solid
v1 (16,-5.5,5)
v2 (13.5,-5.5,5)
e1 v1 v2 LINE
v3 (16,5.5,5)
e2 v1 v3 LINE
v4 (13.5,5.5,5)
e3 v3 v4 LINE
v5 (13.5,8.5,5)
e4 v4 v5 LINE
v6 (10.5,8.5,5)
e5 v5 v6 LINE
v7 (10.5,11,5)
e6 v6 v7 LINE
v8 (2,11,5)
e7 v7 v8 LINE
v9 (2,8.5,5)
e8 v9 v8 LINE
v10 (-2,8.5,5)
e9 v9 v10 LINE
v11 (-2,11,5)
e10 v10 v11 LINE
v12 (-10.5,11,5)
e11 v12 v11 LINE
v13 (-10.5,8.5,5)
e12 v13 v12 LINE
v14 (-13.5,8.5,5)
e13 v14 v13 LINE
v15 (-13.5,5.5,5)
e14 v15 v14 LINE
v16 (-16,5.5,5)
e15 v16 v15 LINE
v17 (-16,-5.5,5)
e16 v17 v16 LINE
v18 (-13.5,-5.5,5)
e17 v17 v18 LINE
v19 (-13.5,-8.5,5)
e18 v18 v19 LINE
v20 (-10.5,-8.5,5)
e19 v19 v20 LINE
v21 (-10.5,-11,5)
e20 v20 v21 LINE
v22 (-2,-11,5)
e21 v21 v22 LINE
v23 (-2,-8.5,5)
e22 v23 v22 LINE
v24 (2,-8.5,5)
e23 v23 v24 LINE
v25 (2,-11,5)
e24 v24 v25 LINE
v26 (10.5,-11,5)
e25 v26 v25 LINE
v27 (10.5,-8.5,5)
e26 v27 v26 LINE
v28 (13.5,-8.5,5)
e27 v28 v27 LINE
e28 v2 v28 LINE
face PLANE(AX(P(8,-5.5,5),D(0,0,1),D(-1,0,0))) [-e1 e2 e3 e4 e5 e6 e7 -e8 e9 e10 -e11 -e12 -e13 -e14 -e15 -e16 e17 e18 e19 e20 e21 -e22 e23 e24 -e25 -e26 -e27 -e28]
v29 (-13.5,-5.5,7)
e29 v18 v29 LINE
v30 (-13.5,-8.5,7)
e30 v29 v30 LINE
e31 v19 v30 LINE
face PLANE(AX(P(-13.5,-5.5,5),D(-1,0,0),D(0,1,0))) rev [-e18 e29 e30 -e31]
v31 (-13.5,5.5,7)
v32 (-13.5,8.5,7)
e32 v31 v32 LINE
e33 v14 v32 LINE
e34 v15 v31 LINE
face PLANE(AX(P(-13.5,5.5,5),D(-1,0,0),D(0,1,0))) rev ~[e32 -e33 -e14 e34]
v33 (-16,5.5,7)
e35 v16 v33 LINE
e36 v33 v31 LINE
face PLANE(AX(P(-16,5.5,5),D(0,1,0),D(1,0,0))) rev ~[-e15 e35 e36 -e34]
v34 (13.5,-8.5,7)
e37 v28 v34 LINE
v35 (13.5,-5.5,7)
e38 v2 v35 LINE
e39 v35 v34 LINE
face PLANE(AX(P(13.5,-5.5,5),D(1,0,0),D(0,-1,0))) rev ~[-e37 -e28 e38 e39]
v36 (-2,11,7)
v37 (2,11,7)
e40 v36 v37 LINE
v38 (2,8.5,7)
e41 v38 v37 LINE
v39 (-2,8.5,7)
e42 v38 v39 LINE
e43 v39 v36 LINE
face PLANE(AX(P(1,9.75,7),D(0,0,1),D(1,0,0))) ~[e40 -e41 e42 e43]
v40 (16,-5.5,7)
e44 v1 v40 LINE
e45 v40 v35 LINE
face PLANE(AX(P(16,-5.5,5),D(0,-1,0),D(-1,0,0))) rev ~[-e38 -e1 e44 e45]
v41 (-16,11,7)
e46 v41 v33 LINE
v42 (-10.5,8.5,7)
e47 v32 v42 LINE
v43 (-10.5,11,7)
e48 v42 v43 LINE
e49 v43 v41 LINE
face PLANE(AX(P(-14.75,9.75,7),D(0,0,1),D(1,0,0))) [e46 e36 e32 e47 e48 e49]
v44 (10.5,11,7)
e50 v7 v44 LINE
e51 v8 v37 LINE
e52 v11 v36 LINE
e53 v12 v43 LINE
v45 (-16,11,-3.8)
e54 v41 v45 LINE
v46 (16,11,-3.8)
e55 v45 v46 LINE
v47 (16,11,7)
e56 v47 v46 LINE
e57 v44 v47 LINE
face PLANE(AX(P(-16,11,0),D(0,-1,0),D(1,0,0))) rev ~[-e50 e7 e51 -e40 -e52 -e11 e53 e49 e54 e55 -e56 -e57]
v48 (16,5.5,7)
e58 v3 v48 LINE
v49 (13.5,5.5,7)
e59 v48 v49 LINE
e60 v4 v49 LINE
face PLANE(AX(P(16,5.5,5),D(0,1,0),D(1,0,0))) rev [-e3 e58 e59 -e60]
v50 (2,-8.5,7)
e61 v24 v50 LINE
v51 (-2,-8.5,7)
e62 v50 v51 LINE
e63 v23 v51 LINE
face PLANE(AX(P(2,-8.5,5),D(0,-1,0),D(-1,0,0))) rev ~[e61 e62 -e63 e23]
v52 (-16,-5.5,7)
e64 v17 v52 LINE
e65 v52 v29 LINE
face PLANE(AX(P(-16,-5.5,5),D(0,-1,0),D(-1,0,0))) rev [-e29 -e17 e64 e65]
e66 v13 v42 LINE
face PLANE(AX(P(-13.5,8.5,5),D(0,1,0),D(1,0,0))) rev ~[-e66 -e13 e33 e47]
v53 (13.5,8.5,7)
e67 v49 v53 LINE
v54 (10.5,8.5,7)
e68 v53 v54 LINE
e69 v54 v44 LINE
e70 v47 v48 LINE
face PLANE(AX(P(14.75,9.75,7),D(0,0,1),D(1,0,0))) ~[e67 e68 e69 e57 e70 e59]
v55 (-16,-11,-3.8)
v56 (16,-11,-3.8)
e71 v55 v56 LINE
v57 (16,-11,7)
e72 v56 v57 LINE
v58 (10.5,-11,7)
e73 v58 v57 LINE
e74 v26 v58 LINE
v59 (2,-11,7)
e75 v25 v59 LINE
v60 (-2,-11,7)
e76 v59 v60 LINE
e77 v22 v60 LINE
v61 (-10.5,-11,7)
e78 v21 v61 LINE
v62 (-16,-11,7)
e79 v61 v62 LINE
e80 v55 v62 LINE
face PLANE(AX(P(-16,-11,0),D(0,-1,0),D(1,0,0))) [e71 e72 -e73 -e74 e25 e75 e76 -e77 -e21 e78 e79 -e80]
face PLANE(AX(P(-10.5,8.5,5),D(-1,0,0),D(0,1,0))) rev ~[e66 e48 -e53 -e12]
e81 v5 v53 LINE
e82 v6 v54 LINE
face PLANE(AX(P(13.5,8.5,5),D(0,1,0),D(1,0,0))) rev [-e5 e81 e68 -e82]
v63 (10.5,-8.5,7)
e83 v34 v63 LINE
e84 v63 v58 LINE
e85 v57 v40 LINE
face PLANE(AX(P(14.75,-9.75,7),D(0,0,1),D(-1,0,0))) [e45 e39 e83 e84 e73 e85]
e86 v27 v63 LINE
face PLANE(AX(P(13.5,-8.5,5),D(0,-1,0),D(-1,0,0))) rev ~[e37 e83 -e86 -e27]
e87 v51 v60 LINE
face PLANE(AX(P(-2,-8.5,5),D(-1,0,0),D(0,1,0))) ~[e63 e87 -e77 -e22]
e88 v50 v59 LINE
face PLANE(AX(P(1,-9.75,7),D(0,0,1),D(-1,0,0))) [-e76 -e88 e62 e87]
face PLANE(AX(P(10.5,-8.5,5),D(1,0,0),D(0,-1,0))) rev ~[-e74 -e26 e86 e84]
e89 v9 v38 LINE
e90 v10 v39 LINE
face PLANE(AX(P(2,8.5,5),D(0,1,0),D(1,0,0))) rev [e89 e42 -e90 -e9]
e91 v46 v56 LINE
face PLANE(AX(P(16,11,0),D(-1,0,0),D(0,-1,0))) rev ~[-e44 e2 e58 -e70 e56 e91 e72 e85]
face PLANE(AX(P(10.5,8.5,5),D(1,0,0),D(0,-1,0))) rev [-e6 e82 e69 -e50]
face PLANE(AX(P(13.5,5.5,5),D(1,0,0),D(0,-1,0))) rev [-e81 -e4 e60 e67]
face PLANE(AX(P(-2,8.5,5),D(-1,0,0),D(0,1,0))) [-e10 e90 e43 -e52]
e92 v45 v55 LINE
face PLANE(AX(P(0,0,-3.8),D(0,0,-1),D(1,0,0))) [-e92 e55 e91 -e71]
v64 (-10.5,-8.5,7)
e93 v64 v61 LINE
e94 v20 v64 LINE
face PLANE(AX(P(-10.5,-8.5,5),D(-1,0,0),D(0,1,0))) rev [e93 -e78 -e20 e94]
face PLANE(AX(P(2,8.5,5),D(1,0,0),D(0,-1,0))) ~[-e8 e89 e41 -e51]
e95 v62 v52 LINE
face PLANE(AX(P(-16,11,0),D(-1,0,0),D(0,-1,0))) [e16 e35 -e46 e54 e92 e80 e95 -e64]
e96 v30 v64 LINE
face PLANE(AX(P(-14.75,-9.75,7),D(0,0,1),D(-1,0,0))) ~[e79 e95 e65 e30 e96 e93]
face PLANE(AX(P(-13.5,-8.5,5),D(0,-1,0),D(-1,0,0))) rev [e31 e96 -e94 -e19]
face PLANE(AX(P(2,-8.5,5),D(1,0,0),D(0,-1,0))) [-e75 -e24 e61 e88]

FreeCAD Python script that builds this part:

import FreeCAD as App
import Part
import Sketcher

V = App.Vector
Q = App.Units.Quantity

doc = App.newDocument("Part")
params = doc.addObject("Spreadsheet::Sheet", "Params")
for row, (alias, value) in enumerate([
    ("sketch1_width", "16 mm"),
    ("sketch1_height", "11 mm"),
    ("pad1_length", "5 mm"),
    ("sketch2_width", "3 mm"),
    ("sketch2_width2", "2 mm"),
    ("sketch2_width3", "2.5 mm"),
    ("pad2_length", "2 mm"),
    ("sketch3_width", "32 mm"),
    ("sketch3_height", "22 mm"),
    ("pad3_length", "3.8 mm"),
], start=1):
    params.set(f"A{row}", alias)
    params.set(f"B{row}", "=" + value)
    params.setAlias(f"B{row}", alias)

body = doc.addObject("PartDesign::Body", "Body")

# Sketch on XY plane
sketch1 = body.newObject("Sketcher::SketchObject", "Sketch")
sketch1.AttachmentSupport = (doc.getObject("XY_Plane"), [""])
sketch1.MapMode = "FlatFace"
sketch1.addGeometry(Part.LineSegment(V(-16, 11, 0), V(-16, 0, 0)), False)
sketch1.addGeometry(Part.LineSegment(V(-16, 0, 0), V(0, 0, 0)), False)
sketch1.addGeometry(Part.LineSegment(V(0, 0, 0), V(0, 11, 0)), False)
sketch1.addGeometry(Part.LineSegment(V(0, 11, 0), V(-16, 11, 0)), False)
sketch1.addConstraint(Sketcher.Constraint("Coincident", 0, 2, 1, 1))
sketch1.addConstraint(Sketcher.Constraint("Coincident", 1, 2, 2, 1))
sketch1.addConstraint(Sketcher.Constraint("Coincident", 2, 2, 3, 1))
sketch1.addConstraint(Sketcher.Constraint("Coincident", 3, 2, 0, 1))
sketch1.addConstraint(Sketcher.Constraint("Vertical", 0))
sketch1.addConstraint(Sketcher.Constraint("Horizontal", 1))
sketch1.addConstraint(Sketcher.Constraint("Vertical", 2))
sketch1.addConstraint(Sketcher.Constraint("Horizontal", 3))
sketch1.addConstraint(Sketcher.Constraint("Coincident", 1, 2, -1, 1))
sketch1.addConstraint(Sketcher.Constraint("DistanceX", 1, 1, 1, 2, Q("16 mm")))
sketch1.addConstraint(Sketcher.Constraint("DistanceY", 0, 2, 0, 1, Q("11 mm")))
sketch1.setExpression("Constraints[9]", "Params.sketch1_width")
sketch1.setExpression("Constraints[10]", "Params.sketch1_height")
pad1 = body.newObject("PartDesign::Pad", "Pad")
pad1.Profile = sketch1
pad1.setExpression("Length", "Params.pad1_length")

# Sketch on XY plane
sketch2 = body.newObject("Sketcher::SketchObject", "Sketch001")
sketch2.AttachmentSupport = (doc.getObject("XY_Plane"), [""])
sketch2.MapMode = "FlatFace"
sketch2.AttachmentOffset = App.Placement(V(0, 0, 5), App.Rotation())
sketch2.addGeometry(Part.LineSegment(V(-16, 11, 0), V(-16, 5.5, 0)), False)
sketch2.addGeometry(Part.LineSegment(V(-16, 5.5, 0), V(-13.5, 5.5, 0)), False)
sketch2.addGeometry(Part.LineSegment(V(-13.5, 5.5, 0), V(-13.5, 8.5, 0)), False)
sketch2.addGeometry(Part.LineSegment(V(-13.5, 8.5, 0), V(-10.5, 8.5, 0)), False)
sketch2.addGeometry(Part.LineSegment(V(-10.5, 8.5, 0), V(-10.5, 11, 0)), False)
sketch2.addGeometry(Part.LineSegment(V(-10.5, 11, 0), V(-16, 11, 0)), False)
sketch2.addGeometry(Part.LineSegment(V(-2, 11, 0), V(-2, 8.5, 0)), False)
sketch2.addGeometry(Part.LineSegment(V(-2, 8.5, 0), V(0, 8.5, 0)), False)
sketch2.addGeometry(Part.LineSegment(V(0, 8.5, 0), V(0, 11, 0)), False)
sketch2.addGeometry(Part.LineSegment(V(0, 11, 0), V(-2, 11, 0)), False)
sketch2.addConstraint(Sketcher.Constraint("Coincident", 0, 2, 1, 1))
sketch2.addConstraint(Sketcher.Constraint("Coincident", 1, 2, 2, 1))
sketch2.addConstraint(Sketcher.Constraint("Coincident", 2, 2, 3, 1))
sketch2.addConstraint(Sketcher.Constraint("Coincident", 3, 2, 4, 1))
sketch2.addConstraint(Sketcher.Constraint("Coincident", 4, 2, 5, 1))
sketch2.addConstraint(Sketcher.Constraint("Coincident", 5, 2, 0, 1))
sketch2.addConstraint(Sketcher.Constraint("Coincident", 6, 2, 7, 1))
sketch2.addConstraint(Sketcher.Constraint("Coincident", 7, 2, 8, 1))
sketch2.addConstraint(Sketcher.Constraint("Coincident", 8, 2, 9, 1))
sketch2.addConstraint(Sketcher.Constraint("Coincident", 9, 2, 6, 1))
sketch2.addConstraint(Sketcher.Constraint("Vertical", 0))
sketch2.addConstraint(Sketcher.Constraint("Horizontal", 1))
sketch2.addConstraint(Sketcher.Constraint("Vertical", 2))
sketch2.addConstraint(Sketcher.Constraint("Horizontal", 3))
sketch2.addConstraint(Sketcher.Constraint("Vertical", 4))
sketch2.addConstraint(Sketcher.Constraint("Horizontal", 5))
sketch2.addConstraint(Sketcher.Constraint("Vertical", 6))
sketch2.addConstraint(Sketcher.Constraint("Horizontal", 7))
sketch2.addConstraint(Sketcher.Constraint("Vertical", 8))
sketch2.addConstraint(Sketcher.Constraint("Horizontal", 9))
sketch2.addConstraint(Sketcher.Constraint("PointOnObject", 7, 2, -2))
sketch2.addConstraint(Sketcher.Constraint("Horizontal", 3, 2, 6, 2))
sketch2.addConstraint(Sketcher.Constraint("Horizontal", 5, 2, 8, 2))
sketch2.addConstraint(Sketcher.Constraint("Equal", 5, 0))
sketch2.addConstraint(Sketcher.Constraint("Equal", 3, 2))
sketch2.addConstraint(Sketcher.Constraint("DistanceX", 3, 1, 3, 2, Q("3 mm")))
sketch2.addConstraint(Sketcher.Constraint("DistanceX", 7, 1, 7, 2, Q("2 mm")))
sketch2.addConstraint(Sketcher.Constraint("DistanceX", 1, 1, 1, 2, Q("2.5 mm")))
sketch2.addConstraint(Sketcher.Constraint("DistanceX", 0, 2, -1, 1, Q("16 mm")))
sketch2.addConstraint(Sketcher.Constraint("DistanceY", -1, 1, 4, 2, Q("11 mm")))
sketch2.setExpression("Constraints[25]", "Params.sketch2_width")
sketch2.setExpression("Constraints[26]", "Params.sketch2_width2")
sketch2.setExpression("Constraints[27]", "Params.sketch2_width3")
pad2 = body.newObject("PartDesign::Pad", "Pad001")
pad2.Profile = sketch2
pad2.setExpression("Length", "Params.pad2_length")
body2 = doc.addObject("PartDesign::Body", "Body001")
doc.recompute()

body2.BaseFeature = body
doc.recompute()

mirroring = doc.addObject("Part::Mirroring", "Mirroring")
mirroring.Source = body
mirroring.Base = V(0, 0, 0)
mirroring.Normal = V(0, -1, 0)
body3 = doc.addObject("PartDesign::Body", "Body002")
body3.BaseFeature = mirroring
boolean = body2.newObject("PartDesign::Boolean", "Boolean")
boolean.Type = "Fuse"
boolean.addObjects([body3])
doc.recompute()
body4 = doc.addObject("PartDesign::Body", "Body003")
doc.recompute()

body4.BaseFeature = body2
doc.recompute()

mirroring2 = doc.addObject("Part::Mirroring", "Mirroring001")
mirroring2.Source = body2
mirroring2.Base = V(0, 0, 0)
mirroring2.Normal = V(1, 0, 0)
body5 = doc.addObject("PartDesign::Body", "Body004")
body5.BaseFeature = mirroring2
boolean2 = body4.newObject("PartDesign::Boolean", "Boolean001")
boolean2.Type = "Fuse"
boolean2.addObjects([body5])
doc.recompute()

# Sketch on XY plane
sketch3 = body4.newObject("Sketcher::SketchObject", "Sketch002")
sketch3.AttachmentSupport = (doc.getObject("XY_Plane003"), [""])
sketch3.MapMode = "FlatFace"
sketch3.addGeometry(Part.LineSegment(V(-16, -11, 0), V(-16, 11, 0)), False)
sketch3.addGeometry(Part.LineSegment(V(-16, 11, 0), V(16, 11, 0)), False)
sketch3.addGeometry(Part.LineSegment(V(16, 11, 0), V(16, -11, 0)), False)
sketch3.addGeometry(Part.LineSegment(V(16, -11, 0), V(-16, -11, 0)), False)
sketch3.addConstraint(Sketcher.Constraint("Coincident", 0, 2, 1, 1))
sketch3.addConstraint(Sketcher.Constraint("Coincident", 1, 2, 2, 1))
sketch3.addConstraint(Sketcher.Constraint("Coincident", 2, 2, 3, 1))
sketch3.addConstraint(Sketcher.Constraint("Coincident", 3, 2, 0, 1))
sketch3.addConstraint(Sketcher.Constraint("Vertical", 0))
sketch3.addConstraint(Sketcher.Constraint("Horizontal", 1))
sketch3.addConstraint(Sketcher.Constraint("Vertical", 2))
sketch3.addConstraint(Sketcher.Constraint("Horizontal", 3))
sketch3.addConstraint(Sketcher.Constraint("Symmetric", 0, 2, 2, 2, -1, 1))
sketch3.addConstraint(Sketcher.Constraint("DistanceX", 1, 1, 1, 2, Q("32 mm")))
sketch3.addConstraint(Sketcher.Constraint("DistanceY", 0, 1, 0, 2, Q("22 mm")))
sketch3.setExpression("Constraints[9]", "Params.sketch3_width")
sketch3.setExpression("Constraints[10]", "Params.sketch3_height")
pad3 = body4.newObject("PartDesign::Pad", "Pad002")
pad3.Profile = sketch3
pad3.setExpression("Length", "Params.pad3_length")
pad3.Reversed = True
mirroring.Visibility = False
mirroring2.Visibility = False

doc.recompute()
